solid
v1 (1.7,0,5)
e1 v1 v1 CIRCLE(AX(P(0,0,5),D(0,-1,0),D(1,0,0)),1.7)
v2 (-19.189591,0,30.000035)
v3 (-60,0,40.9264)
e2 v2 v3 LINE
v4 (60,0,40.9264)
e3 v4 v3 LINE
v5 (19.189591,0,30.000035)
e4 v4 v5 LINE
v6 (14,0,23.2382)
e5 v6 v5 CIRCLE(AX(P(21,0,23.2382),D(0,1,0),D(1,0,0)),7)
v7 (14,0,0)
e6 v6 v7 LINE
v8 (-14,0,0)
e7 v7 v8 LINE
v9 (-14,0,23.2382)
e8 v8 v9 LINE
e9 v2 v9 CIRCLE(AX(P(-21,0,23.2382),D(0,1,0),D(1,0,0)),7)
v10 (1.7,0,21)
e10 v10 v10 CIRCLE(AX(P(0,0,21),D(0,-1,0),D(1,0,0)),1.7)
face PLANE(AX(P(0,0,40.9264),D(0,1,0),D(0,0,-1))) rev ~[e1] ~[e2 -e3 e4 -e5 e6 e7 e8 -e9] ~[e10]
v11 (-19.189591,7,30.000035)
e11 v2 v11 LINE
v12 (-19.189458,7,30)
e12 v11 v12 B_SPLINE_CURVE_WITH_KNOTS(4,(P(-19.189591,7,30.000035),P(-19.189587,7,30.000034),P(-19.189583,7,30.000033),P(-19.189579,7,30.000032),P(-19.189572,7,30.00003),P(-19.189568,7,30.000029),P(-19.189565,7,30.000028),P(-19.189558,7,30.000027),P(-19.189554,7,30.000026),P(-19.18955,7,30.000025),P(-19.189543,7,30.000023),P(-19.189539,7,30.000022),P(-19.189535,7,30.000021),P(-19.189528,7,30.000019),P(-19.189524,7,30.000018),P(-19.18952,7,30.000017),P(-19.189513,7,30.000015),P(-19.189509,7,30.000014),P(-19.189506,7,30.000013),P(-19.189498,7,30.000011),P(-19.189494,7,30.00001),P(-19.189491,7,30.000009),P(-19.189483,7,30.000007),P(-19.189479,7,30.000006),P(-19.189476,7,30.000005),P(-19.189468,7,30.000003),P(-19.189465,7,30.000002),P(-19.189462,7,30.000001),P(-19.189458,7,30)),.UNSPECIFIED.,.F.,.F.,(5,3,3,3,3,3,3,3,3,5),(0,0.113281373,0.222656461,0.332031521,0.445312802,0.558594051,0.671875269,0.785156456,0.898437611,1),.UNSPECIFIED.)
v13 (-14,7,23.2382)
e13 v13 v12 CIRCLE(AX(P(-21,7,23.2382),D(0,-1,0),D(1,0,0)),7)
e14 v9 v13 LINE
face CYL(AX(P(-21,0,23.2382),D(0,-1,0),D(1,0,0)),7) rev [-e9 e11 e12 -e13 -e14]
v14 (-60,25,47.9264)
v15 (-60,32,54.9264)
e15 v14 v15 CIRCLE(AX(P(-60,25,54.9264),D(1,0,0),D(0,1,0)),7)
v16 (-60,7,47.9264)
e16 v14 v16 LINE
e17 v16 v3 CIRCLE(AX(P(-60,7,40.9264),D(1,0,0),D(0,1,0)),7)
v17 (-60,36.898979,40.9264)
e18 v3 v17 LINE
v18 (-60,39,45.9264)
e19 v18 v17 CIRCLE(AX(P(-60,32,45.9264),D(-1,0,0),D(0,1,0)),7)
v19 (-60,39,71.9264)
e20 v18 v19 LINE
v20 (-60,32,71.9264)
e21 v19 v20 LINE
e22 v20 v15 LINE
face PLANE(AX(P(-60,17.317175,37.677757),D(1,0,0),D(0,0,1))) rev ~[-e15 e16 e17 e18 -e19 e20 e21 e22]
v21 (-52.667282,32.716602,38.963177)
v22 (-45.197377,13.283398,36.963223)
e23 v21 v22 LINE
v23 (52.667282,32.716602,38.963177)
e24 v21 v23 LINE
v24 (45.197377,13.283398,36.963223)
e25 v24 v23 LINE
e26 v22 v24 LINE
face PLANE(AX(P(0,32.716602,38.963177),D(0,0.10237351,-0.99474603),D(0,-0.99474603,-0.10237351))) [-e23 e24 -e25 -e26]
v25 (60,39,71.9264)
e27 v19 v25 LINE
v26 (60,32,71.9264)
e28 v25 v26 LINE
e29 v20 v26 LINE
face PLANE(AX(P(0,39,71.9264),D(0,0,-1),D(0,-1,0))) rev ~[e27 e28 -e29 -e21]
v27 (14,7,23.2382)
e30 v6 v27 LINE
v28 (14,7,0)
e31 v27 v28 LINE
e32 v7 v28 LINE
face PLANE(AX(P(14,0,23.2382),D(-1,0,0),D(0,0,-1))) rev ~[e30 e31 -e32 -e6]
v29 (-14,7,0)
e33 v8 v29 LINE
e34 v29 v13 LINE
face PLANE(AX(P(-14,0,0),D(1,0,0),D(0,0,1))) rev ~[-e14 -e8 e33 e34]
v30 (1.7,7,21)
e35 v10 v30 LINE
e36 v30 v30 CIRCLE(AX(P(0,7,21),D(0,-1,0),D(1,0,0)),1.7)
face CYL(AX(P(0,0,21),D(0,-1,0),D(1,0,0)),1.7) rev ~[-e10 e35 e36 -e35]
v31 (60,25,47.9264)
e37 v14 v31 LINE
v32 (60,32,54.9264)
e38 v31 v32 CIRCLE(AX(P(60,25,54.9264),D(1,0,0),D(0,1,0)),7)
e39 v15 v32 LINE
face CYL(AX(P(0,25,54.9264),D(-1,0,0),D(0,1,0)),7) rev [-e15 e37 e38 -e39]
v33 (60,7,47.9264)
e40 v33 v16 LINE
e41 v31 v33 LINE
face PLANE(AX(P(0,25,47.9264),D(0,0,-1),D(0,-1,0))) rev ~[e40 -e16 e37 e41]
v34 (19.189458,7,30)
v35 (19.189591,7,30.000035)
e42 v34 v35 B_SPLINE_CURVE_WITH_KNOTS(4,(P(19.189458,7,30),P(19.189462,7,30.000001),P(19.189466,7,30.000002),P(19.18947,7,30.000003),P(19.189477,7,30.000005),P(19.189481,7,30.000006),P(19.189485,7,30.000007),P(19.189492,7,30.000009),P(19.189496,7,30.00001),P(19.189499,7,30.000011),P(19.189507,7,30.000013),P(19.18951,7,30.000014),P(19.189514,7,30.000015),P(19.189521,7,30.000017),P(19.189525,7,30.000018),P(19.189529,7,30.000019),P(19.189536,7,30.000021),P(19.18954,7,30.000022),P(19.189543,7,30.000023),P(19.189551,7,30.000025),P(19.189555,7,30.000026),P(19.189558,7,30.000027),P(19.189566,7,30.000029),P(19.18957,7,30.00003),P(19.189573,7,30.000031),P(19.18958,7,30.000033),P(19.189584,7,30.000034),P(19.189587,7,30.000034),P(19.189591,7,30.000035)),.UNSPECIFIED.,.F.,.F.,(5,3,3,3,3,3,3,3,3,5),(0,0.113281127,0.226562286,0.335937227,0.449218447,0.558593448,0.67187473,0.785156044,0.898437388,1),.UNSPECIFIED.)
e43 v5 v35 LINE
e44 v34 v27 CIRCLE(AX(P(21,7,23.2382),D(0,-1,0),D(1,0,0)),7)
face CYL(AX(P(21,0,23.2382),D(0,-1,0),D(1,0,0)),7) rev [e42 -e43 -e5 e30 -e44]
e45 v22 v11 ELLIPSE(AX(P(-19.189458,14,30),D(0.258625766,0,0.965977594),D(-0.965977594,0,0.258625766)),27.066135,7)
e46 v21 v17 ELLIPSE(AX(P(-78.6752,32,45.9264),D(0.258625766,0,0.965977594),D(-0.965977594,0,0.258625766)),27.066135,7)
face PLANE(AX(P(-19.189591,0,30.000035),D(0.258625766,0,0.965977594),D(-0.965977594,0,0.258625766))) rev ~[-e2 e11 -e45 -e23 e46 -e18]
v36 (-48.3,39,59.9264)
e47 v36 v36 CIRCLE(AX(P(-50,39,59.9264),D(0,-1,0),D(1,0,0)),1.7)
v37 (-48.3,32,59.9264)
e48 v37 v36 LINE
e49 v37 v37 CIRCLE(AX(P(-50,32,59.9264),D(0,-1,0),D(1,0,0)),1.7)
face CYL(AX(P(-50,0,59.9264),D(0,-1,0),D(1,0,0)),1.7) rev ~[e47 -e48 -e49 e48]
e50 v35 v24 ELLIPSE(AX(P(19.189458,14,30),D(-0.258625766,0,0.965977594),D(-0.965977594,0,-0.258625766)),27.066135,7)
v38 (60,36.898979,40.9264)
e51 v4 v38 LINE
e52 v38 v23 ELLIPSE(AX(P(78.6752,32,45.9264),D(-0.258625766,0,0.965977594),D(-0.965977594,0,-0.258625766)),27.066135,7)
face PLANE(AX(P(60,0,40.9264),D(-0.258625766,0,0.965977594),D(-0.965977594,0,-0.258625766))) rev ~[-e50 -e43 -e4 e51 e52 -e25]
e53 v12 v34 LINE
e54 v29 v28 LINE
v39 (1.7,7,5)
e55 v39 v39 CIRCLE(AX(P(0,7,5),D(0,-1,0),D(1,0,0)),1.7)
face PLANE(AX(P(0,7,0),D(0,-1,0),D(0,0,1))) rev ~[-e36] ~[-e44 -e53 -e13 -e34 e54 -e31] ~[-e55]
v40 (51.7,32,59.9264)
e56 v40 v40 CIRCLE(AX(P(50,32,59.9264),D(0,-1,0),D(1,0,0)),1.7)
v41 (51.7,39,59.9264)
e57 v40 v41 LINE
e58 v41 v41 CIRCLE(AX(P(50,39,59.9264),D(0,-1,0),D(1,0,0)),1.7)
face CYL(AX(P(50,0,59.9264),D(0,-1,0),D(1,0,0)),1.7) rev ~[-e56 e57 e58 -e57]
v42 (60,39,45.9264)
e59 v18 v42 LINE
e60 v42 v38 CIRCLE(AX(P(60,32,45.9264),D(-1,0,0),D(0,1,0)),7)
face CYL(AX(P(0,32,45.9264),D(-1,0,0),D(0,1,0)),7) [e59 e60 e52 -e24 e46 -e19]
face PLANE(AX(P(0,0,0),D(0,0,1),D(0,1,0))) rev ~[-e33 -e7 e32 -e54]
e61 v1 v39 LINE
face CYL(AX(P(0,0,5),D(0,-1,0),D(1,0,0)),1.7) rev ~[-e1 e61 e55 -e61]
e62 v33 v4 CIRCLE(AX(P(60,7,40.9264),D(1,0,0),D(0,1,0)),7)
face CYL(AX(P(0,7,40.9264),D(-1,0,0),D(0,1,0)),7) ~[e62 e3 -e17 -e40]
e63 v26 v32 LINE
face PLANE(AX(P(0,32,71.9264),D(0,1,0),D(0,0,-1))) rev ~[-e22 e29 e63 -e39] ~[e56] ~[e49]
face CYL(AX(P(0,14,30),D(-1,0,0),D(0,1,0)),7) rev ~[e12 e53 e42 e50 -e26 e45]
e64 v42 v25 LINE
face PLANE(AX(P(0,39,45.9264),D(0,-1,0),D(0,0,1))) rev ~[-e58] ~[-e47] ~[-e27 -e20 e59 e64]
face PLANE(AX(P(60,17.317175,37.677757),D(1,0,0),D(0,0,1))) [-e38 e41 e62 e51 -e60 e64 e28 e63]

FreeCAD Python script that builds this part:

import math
import FreeCAD as App
import Part
import Sketcher

V = App.Vector
Q = App.Units.Quantity

doc = App.newDocument("Part")
body = doc.addObject("PartDesign::Body", "Body")

# Sketch on YZ plane
sketch1 = body.newObject("Sketcher::SketchObject", "Sketch")
sketch1.AttachmentSupport = (doc.getObject("YZ_Plane"), [""])
sketch1.MapMode = "FlatFace"
sketch1.addGeometry([
    Part.LineSegment(V(0, 41, 0), V(0, 0, 0)),  # 0
    Part.LineSegment(V(0, 0, 0), V(7, 0, 0)),  # 1
    Part.LineSegment(V(7, 0, 0), V(7, 30, 0)),  # 2
    Part.ArcOfCircle(Part.Circle(V(14, 30, 0), V(0, 0, 1), 7), math.radians(96), math.radians(180)),  # 3
    Part.LineSegment(V(13, 37, 0), V(33, 39, 0)),  # 4
    Part.ArcOfCircle(Part.Circle(V(32, 46, 0), V(0, 0, 1), 7), math.radians(-84), math.radians(0)),  # 5
    Part.LineSegment(V(39, 46, 0), V(39, 72, 0)),  # 6
    Part.LineSegment(V(39, 72, 0), V(32, 72, 0)),  # 7
    Part.LineSegment(V(32, 72, 0), V(32, 55, 0)),  # 8
    Part.ArcOfCircle(Part.Circle(V(25, 55, 0), V(0, 0, 1), 7), math.radians(-90), math.radians(0)),  # 9
    Part.LineSegment(V(25, 48, 0), V(7, 48, 0)),  # 10
    Part.ArcOfCircle(Part.Circle(V(7, 41, 0), V(0, 0, 1), 7), math.radians(90), math.radians(180)),  # 11
], False)
sketch1.addConstraint([
    Sketcher.Constraint("Coincident", 0, 2, 1, 1),
    Sketcher.Constraint("Coincident", 1, 2, 2, 1),
    Sketcher.Constraint("Tangent", 2, 2, 3, 2),
    Sketcher.Constraint("Tangent", 3, 1, 4, 1),
    Sketcher.Constraint("Tangent", 4, 2, 5, 1),
    Sketcher.Constraint("Tangent", 5, 2, 6, 1),
    Sketcher.Constraint("Coincident", 6, 2, 7, 1),
    Sketcher.Constraint("Coincident", 7, 2, 8, 1),
    Sketcher.Constraint("Tangent", 8, 2, 9, 2),
    Sketcher.Constraint("Tangent", 9, 1, 10, 1),
    Sketcher.Constraint("Tangent", 10, 2, 11, 1),
    Sketcher.Constraint("Tangent", 11, 2, 0, 1),
    Sketcher.Constraint("Vertical", 0),
    Sketcher.Constraint("Horizontal", 1),
    Sketcher.Constraint("Vertical", 2),
    Sketcher.Constraint("Vertical", 6),
    Sketcher.Constraint("Horizontal", 7),
    Sketcher.Constraint("Vertical", 8),
    Sketcher.Constraint("Horizontal", 10),
    Sketcher.Constraint("Coincident", 0, 2, -1, 1),
    Sketcher.Constraint("Equal", 3, 5),
    Sketcher.Constraint("Equal", 5, 9),
    Sketcher.Constraint("Equal", 9, 11),
    Sketcher.Constraint("Vertical", 11, 3, 1, 2),
    Sketcher.Constraint("Vertical", 5, 3, 7, 2),
    Sketcher.Constraint("Radius", 3, Q("7 mm")),
    Sketcher.Constraint("DistanceX", -1, 1, 5, 2, Q("39 mm")),
    Sketcher.Constraint("DistanceY", 2, 1, 2, 2, Q("30 mm")),
    Sketcher.Constraint("DistanceY", 6, 1, 6, 2, Q("26 mm")),
    Sketcher.Constraint("DistanceY", 8, 2, 8, 1, Q("17 mm")),
    Sketcher.Constraint("DistanceY", 3, 1, 4, 2, Q("2 mm")),
])
pad1 = body.newObject("PartDesign::Pad", "Pad")
pad1.Profile = sketch1
pad1.Length = 120
pad1.Midplane = True

# Sketch on XZ plane
sketch2 = body.newObject("Sketcher::SketchObject", "Sketch001")
sketch2.AttachmentSupport = (doc.getObject("XZ_Plane"), [""])
sketch2.MapMode = "FlatFace"
sketch2.addGeometry([
    Part.Circle(V(0, 21, 0), V(0, 0, 1), 1.7),
    Part.Circle(V(0, 5, 0), V(0, 0, 1), 1.7),
    Part.Circle(V(-50, 59.9, 0), V(0, 0, 1), 1.7),
    Part.Circle(V(50, 59.9, 0), V(0, 0, 1), 1.7),
], False)
sketch2.addConstraint([
    Sketcher.Constraint("Equal", 0, 1),
    Sketcher.Constraint("Equal", 1, 2),
    Sketcher.Constraint("Equal", 2, 3),
    Sketcher.Constraint("Symmetric", 2, 3, 3, 3, -2),
    Sketcher.Constraint("PointOnObject", 0, 3, -2),
    Sketcher.Constraint("PointOnObject", 1, 3, -2),
    Sketcher.Constraint("Diameter", 0, Q("3.4 mm")),
    Sketcher.Constraint("DistanceY", -1, 1, 0, 3, Q("21 mm")),
    Sketcher.Constraint("DistanceY", -1, 1, 1, 3, Q("5 mm")),
    Sketcher.Constraint("DistanceX", 2, 3, -1, 1, Q("50 mm")),
    Sketcher.Constraint("DistanceY", -1, 1, 2, 3, Q("59.9264 mm")),
])
pocket1 = body.newObject("PartDesign::Pocket", "Pocket")
pocket1.Profile = sketch2
pocket1.Type = "ThroughAll"

# Sketch on XZ plane
sketch3 = body.newObject("Sketcher::SketchObject", "Sketch002")
sketch3.AttachmentSupport = (doc.getObject("XZ_Plane"), [""])
sketch3.MapMode = "FlatFace"
sketch3.addGeometry([
    Part.LineSegment(V(14, 0, 0), V(-14, 0, 0)),  # 0
    Part.LineSegment(V(-14, 0, 0), V(-14, 23, 0)),  # 1
    Part.ArcOfCircle(Part.Circle(V(-21, 23, 0), V(0, 0, 1), 7), math.radians(0), math.radians(75)),  # 2
    Part.LineSegment(V(-19, 30, 0), V(-60, 41, 0)),  # 3
    Part.LineSegment(V(-60, 41, 0), V(-102, 41, 0)),  # 4
    Part.LineSegment(V(-102, 41, 0), V(-102, -44, 0)),  # 5
    Part.LineSegment(V(-102, -44, 0), V(160, -44, 0)),  # 6
    Part.LineSegment(V(160, -44, 0), V(160, 41, 0)),  # 7
    Part.LineSegment(V(160, 41, 0), V(60, 41, 0)),  # 8
    Part.LineSegment(V(60, 41, 0), V(19, 30, 0)),  # 9
    Part.ArcOfCircle(Part.Circle(V(21, 23, 0), V(0, 0, 1), 7), math.radians(105), math.radians(180)),  # 10
    Part.LineSegment(V(14, 23, 0), V(14, 0, 0)),  # 11
], False)
sketch3.addConstraint([
    Sketcher.Constraint("Coincident", 0, 2, 1, 1),
    Sketcher.Constraint("Tangent", 1, 2, 2, 1),
    Sketcher.Constraint("Tangent", 2, 2, 3, 1),
    Sketcher.Constraint("Coincident", 3, 2, 4, 1),
    Sketcher.Constraint("Coincident", 4, 2, 5, 1),
    Sketcher.Constraint("Coincident", 5, 2, 6, 1),
    Sketcher.Constraint("Coincident", 6, 2, 7, 1),
    Sketcher.Constraint("Coincident", 7, 2, 8, 1),
    Sketcher.Constraint("Coincident", 8, 2, 9, 1),
    Sketcher.Constraint("Tangent", 9, 2, 10, 1),
    Sketcher.Constraint("Tangent", 10, 2, 11, 1),
    Sketcher.Constraint("Coincident", 11, 2, 0, 1),
    Sketcher.Constraint("Horizontal", 0),
    Sketcher.Constraint("Vertical", 1),
    Sketcher.Constraint("Horizontal", 4),
    Sketcher.Constraint("Vertical", 5),
    Sketcher.Constraint("Horizontal", 6),
    Sketcher.Constraint("Vertical", 7),
    Sketcher.Constraint("Horizontal", 8),
    Sketcher.Constraint("Vertical", 11),
    Sketcher.Constraint("Equal", 2, 10),
    Sketcher.Constraint("Symmetric", 0, 2, 11, 2, -1, 1),
    Sketcher.Constraint("Symmetric", 3, 2, 8, 2, -2),
    Sketcher.Constraint("Horizontal", 2, 3, 10, 3),
    Sketcher.Constraint("Radius", 2, Q("7 mm")),
    Sketcher.Constraint("DistanceX", 0, 2, -1, 1, Q("14 mm")),
    Sketcher.Constraint("DistanceY", -1, 1, 2, 2, Q("30 mm")),
    Sketcher.Constraint("DistanceX", 3, 2, -1, 1, Q("60 mm")),
    Sketcher.Constraint("DistanceX", 2, 2, -1, 1, Q("19.1896 mm")),
    Sketcher.Constraint("DistanceX", 6, 1, 6, 2, Q("261.836 mm")),
    Sketcher.Constraint("DistanceY", 5, 2, 5, 1, Q("85.245 mm")),
    Sketcher.Constraint("DistanceX", 4, 2, 4, 1, Q("41.8817 mm")),
])
pocket2 = body.newObject("PartDesign::Pocket", "Pocket001")
pocket2.Profile = sketch3
pocket2.Type = "ThroughAll"

doc.recompute()
